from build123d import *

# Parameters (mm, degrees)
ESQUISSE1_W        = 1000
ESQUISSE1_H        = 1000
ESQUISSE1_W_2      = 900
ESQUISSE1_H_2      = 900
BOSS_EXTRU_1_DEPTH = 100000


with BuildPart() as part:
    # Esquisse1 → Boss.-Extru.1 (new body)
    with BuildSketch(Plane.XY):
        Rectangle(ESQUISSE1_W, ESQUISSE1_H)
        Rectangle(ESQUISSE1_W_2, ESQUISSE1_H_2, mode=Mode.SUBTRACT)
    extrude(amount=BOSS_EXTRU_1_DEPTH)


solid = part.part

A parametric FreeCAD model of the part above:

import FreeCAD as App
import Part
import Sketcher

V = App.Vector


def add_polygon(sketch, points):
    """Adds a closed chain of lines whose ends are joined by coincident constraints."""
    first, n = sketch.GeometryCount, len(points)
    for a, b in zip(points, points[1:] + points[:1]):
        sketch.addGeometry(Part.LineSegment(App.Vector(*a, 0), App.Vector(*b, 0)), False)
    for i in range(n):
        sketch.addConstraint(Sketcher.Constraint("Coincident", first + i, 2, first + (i + 1) % n, 1))

doc = App.newDocument("Part")
body = doc.addObject("PartDesign::Body", "Body")

sketch1 = body.newObject("Sketcher::SketchObject", "Sketch")
sketch1.AttachmentSupport = (doc.getObject("XY_Plane"), [""])
sketch1.MapMode = "FlatFace"
add_polygon(sketch1, [(-500, 500), (-500, -500), (500, -500), (500, 500)])
add_polygon(sketch1, [(450, -450), (-450, -450), (-450, 450), (450, 450)])
sketch1.addConstraint([
    Sketcher.Constraint("Vertical", 0),
    Sketcher.Constraint("Horizontal", 1),
    Sketcher.Constraint("Vertical", 2),
    Sketcher.Constraint("Horizontal", 3),
    Sketcher.Constraint("Horizontal", 4),
    Sketcher.Constraint("Vertical", 5),
    Sketcher.Constraint("Horizontal", 6),
    Sketcher.Constraint("Vertical", 7),
    Sketcher.Constraint("Symmetric", 0, 2, 2, 2, -1, 1),
    Sketcher.Constraint("Symmetric", 4, 2, 6, 2, -1, 1),
    Sketcher.Constraint("Equal", 3, 0),
    Sketcher.Constraint("Equal", 6, 5),
    Sketcher.Constraint("DistanceX", 1, 1, 1, 2, 1000.0),
    Sketcher.Constraint("DistanceX", 4, 2, 4, 1, 900.0),
])
pad1 = body.newObject("PartDesign::Pad", "Pad")
pad1.Profile = sketch1
pad1.Length = 100000

doc.recompute()
